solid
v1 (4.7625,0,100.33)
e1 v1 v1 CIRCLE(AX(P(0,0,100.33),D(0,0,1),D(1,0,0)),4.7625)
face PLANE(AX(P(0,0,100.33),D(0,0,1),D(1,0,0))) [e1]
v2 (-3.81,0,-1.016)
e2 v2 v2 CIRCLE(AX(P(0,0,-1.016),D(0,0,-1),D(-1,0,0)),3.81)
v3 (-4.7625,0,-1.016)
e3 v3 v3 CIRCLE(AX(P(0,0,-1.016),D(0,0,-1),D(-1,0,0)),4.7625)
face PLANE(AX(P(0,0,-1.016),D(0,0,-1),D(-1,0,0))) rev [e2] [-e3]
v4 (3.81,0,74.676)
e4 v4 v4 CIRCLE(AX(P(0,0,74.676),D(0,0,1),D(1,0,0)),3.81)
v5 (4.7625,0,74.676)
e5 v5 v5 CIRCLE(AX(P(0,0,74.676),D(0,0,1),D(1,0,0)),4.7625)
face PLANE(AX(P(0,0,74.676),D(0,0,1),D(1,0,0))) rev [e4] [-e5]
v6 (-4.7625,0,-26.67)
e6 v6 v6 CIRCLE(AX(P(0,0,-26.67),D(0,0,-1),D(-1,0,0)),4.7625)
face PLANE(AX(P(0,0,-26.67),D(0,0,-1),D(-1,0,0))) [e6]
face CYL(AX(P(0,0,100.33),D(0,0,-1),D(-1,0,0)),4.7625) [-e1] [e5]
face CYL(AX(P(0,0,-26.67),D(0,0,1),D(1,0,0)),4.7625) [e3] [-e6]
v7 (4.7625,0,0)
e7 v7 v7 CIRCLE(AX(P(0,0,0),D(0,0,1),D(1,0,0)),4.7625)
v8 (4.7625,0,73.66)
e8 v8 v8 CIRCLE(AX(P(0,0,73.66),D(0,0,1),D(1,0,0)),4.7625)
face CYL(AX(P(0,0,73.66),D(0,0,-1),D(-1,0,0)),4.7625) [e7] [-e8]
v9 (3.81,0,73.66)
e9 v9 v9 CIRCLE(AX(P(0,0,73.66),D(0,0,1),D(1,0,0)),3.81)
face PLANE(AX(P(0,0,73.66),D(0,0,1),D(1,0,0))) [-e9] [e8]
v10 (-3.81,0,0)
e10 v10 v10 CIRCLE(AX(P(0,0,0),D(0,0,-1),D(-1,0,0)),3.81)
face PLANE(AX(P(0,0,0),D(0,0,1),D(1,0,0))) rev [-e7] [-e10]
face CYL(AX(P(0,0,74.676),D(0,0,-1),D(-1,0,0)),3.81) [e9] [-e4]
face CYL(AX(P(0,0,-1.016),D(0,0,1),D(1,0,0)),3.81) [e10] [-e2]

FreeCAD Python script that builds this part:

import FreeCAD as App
import Part
import Sketcher

V = App.Vector
Q = App.Units.Quantity

doc = App.newDocument("Part")
body = doc.addObject("PartDesign::Body", "Body")

sketch1 = doc.addObject("Sketcher::SketchObject", "Sketch")
body.addObject(sketch1)
sketch1.AttachmentSupport = (doc.XY_Plane, [""])
sketch1.MapMode = "FlatFace"
sketch1.addGeometry(Part.Circle(V(0, 0, 0), V(0, 0, 1), 4.7625), False)
sketch1.addConstraint([
    Sketcher.Constraint("Coincident", 0, 3, -1, 1),
    Sketcher.Constraint("Diameter", 0, Q("0.375 in")),
])
pad1 = doc.addObject("PartDesign::Pad", "Pad")
body.addObject(pad1)
pad1.Profile = sketch1
pad1.Length = Q("2.9 in")

sketch2 = doc.addObject("Sketcher::SketchObject", "Sketch001")
body.addObject(sketch2)
sketch2.AttachmentSupport = (doc.XY_Plane, [""])
sketch2.MapMode = "FlatFace"
sketch2.addGeometry(Part.Circle(V(0, 0, 0), V(0, 0, 1), 3.81), False)
sketch2.addConstraint([
    Sketcher.Constraint("Coincident", 0, 3, -1, 1),
    Sketcher.Constraint("Diameter", 0, Q("0.3 in")),
])
pad2 = doc.addObject("PartDesign::Pad", "Pad001")
body.addObject(pad2)
pad2.Profile = sketch2
pad2.Length = Q("0.04 in")
pad2.Reversed = True

sketch3 = doc.addObject("Sketcher::SketchObject", "Sketch002")
body.addObject(sketch3)
sketch3.AttachmentSupport = (doc.XY_Plane, [""])
sketch3.MapMode = "FlatFace"
sketch3.AttachmentOffset = App.Placement(V(0, 0, -0.04 * 25.4), App.Rotation())
sketch3.addGeometry(Part.Circle(V(0, 0, 0), V(0, 0, 1), 4.7625), False)
sketch3.addConstraint([
    Sketcher.Constraint("Coincident", 0, 3, -1, 1),
    Sketcher.Constraint("Diameter", 0, Q("0.375 in")),
])
pad3 = doc.addObject("PartDesign::Pad", "Pad002")
body.addObject(pad3)
pad3.Profile = sketch3
pad3.Length = Q("1.01 in")
pad3.Reversed = True

sketch4 = doc.addObject("Sketcher::SketchObject", "Sketch003")
body.addObject(sketch4)
sketch4.AttachmentSupport = (doc.XY_Plane, [""])
sketch4.MapMode = "FlatFace"
sketch4.AttachmentOffset = App.Placement(V(0, 0, 2.9 * 25.4), App.Rotation())
sketch4.addGeometry(Part.Circle(V(0, 0, 0), V(0, 0, 1), 3.81), False)
sketch4.addConstraint([
    Sketcher.Constraint("Coincident", 0, 3, -1, 1),
    Sketcher.Constraint("Diameter", 0, Q("0.3 in")),
])
pad4 = doc.addObject("PartDesign::Pad", "Pad003")
body.addObject(pad4)
pad4.Profile = sketch4
pad4.Length = Q("0.04 in")

sketch5 = doc.addObject("Sketcher::SketchObject", "Sketch004")
body.addObject(sketch5)
sketch5.AttachmentSupport = (doc.XY_Plane, [""])
sketch5.MapMode = "FlatFace"
sketch5.AttachmentOffset = App.Placement(V(0, 0, 2.94 * 25.4), App.Rotation())
sketch5.addGeometry(Part.Circle(V(0, 0, 0), V(0, 0, 1), 4.7625), False)
sketch5.addConstraint([
    Sketcher.Constraint("Coincident", 0, 3, -1, 1),
    Sketcher.Constraint("Diameter", 0, Q("0.375 in")),
])
pad5 = doc.addObject("PartDesign::Pad", "Pad004")
body.addObject(pad5)
pad5.Profile = sketch5
pad5.Length = Q("1.01 in")

doc.recompute()
